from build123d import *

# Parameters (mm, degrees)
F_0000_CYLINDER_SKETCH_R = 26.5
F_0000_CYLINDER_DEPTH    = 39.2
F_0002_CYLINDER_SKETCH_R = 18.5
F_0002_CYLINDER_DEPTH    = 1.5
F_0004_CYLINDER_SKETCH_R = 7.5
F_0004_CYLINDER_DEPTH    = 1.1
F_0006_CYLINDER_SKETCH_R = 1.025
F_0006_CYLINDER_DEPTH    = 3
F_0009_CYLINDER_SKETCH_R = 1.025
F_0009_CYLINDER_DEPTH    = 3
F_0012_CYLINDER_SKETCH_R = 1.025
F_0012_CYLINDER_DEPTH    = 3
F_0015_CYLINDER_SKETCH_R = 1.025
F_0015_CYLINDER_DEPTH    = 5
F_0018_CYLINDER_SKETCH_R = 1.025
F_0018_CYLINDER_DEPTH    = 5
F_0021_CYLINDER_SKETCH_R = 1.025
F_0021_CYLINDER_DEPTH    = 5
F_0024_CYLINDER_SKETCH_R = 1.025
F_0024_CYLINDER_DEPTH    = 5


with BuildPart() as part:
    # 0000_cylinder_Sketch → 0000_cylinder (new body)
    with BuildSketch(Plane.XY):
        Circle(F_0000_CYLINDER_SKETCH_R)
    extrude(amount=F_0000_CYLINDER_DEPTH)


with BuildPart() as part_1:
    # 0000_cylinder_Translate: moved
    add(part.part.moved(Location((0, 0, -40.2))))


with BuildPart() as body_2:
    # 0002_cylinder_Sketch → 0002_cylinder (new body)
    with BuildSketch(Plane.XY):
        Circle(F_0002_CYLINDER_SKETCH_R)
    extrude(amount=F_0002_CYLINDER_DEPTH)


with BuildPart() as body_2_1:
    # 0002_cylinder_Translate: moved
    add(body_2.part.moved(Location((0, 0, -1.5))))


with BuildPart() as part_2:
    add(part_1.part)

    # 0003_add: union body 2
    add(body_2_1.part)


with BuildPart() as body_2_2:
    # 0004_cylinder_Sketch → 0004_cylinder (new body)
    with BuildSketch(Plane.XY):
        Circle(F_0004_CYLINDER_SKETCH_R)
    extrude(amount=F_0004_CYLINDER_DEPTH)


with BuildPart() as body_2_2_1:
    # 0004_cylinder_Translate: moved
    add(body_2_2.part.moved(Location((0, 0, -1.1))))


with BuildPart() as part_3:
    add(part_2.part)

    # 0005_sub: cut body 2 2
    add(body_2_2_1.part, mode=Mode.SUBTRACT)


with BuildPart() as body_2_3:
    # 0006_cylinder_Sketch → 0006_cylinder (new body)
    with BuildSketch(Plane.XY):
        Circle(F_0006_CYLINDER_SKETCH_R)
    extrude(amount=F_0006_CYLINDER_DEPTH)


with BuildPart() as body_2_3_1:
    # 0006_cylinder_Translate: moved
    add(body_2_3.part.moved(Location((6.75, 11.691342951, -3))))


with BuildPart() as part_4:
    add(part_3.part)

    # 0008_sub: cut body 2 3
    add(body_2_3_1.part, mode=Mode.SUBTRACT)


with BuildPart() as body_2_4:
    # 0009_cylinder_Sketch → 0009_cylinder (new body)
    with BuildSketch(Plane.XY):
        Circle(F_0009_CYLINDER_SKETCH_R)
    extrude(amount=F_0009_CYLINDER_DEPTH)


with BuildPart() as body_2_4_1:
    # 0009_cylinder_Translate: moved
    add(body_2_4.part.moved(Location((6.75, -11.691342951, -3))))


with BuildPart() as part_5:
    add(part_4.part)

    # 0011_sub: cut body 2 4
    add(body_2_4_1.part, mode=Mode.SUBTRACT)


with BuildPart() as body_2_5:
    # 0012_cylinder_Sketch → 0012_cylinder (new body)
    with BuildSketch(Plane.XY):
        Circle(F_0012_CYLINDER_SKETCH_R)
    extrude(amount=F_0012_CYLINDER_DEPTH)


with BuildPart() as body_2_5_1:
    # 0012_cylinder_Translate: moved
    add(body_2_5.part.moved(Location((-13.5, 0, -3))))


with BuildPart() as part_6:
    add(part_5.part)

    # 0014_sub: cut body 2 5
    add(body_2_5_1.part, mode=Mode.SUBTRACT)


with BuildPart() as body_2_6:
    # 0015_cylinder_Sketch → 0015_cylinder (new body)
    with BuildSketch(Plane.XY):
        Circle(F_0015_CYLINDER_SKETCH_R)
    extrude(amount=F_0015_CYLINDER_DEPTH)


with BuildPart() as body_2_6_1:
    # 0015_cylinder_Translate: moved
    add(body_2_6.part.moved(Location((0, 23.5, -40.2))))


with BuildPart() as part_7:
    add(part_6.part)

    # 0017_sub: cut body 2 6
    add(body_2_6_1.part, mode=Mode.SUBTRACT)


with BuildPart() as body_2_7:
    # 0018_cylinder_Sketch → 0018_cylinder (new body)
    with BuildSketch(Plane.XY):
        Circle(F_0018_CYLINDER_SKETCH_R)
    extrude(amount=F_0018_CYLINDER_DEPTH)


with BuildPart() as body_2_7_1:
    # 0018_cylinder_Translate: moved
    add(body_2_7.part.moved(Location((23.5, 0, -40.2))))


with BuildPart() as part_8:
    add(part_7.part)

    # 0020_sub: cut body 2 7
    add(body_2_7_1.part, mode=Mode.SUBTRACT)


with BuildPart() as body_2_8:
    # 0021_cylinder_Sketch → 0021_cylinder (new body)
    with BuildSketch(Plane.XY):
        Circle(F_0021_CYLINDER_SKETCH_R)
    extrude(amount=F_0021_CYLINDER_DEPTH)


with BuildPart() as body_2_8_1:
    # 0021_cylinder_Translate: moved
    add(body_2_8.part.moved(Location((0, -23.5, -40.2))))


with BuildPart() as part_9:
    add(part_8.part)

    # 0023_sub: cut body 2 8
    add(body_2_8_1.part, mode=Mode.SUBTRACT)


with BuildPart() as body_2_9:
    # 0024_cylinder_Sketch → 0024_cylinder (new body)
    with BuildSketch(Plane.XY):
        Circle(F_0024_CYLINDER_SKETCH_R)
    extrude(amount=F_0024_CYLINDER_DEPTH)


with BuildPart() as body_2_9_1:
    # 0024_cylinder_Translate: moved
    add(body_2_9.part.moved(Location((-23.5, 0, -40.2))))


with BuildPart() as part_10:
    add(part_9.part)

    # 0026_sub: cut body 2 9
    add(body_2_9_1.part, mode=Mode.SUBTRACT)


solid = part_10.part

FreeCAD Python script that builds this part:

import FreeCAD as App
import Part
import Sketcher

V = App.Vector

doc = App.newDocument("Part")
body = doc.addObject("PartDesign::Body", "Body")

# Sketch on XY plane
sketch1 = doc.addObject("Sketcher::SketchObject", "Sketch")
body.addObject(sketch1)
sketch1.AttachmentSupport = (doc.XY_Plane, [""])
sketch1.MapMode = "FlatFace"
sketch1.addGeometry(Part.Circle(V(0, 0, 0), V(0, 0, 1), 26.5), False)
sketch1.addConstraint(Sketcher.Constraint("Coincident", 0, 3, -1, 1))
sketch1.addConstraint(Sketcher.Constraint("Diameter", 0, 53.0))
pad1 = doc.addObject("PartDesign::Pad", "Pad")
body.addObject(pad1)
pad1.Profile = sketch1
pad1.Length = 39.2
body2 = doc.addObject("PartDesign::Body", "Body001")
doc.recompute()

body.Placement = App.Placement(V(0, 0, -40.2), App.Rotation(V(0, 0, 1), 0))
boolean = doc.addObject("PartDesign::Boolean", "Boolean")
body2.addObject(boolean)
boolean.Type = "Fuse"
boolean.addObjects([body])
body3 = doc.addObject("PartDesign::Body", "Body002")

# Sketch on XY plane
sketch2 = doc.addObject("Sketcher::SketchObject", "Sketch001")
body3.addObject(sketch2)
sketch2.AttachmentSupport = (doc.getObject("XY_Plane002"), [""])
sketch2.MapMode = "FlatFace"
sketch2.addGeometry(Part.Circle(V(0, 0, 0), V(0, 0, 1), 18.5), False)
sketch2.addConstraint(Sketcher.Constraint("Coincident", 0, 3, -1, 1))
sketch2.addConstraint(Sketcher.Constraint("Diameter", 0, 37.0))
pad2 = doc.addObject("PartDesign::Pad", "Pad001")
body3.addObject(pad2)
pad2.Profile = sketch2
pad2.Length = 1.5
body4 = doc.addObject("PartDesign::Body", "Body003")
doc.recompute()

body3.Placement = App.Placement(V(0, 0, -1.5), App.Rotation(V(0, 0, 1), 0))
boolean2 = doc.addObject("PartDesign::Boolean", "Boolean001")
body4.addObject(boolean2)
boolean2.Type = "Fuse"
boolean2.addObjects([body3])
doc.recompute()

boolean3 = doc.addObject("PartDesign::Boolean", "Boolean002")
body2.addObject(boolean3)
boolean3.Type = "Fuse"
boolean3.addObjects([body4])
body5 = doc.addObject("PartDesign::Body", "Body004")

# Sketch on XY plane
sketch3 = doc.addObject("Sketcher::SketchObject", "Sketch002")
body5.addObject(sketch3)
sketch3.AttachmentSupport = (doc.getObject("XY_Plane004"), [""])
sketch3.MapMode = "FlatFace"
sketch3.addGeometry(Part.Circle(V(0, 0, 0), V(0, 0, 1), 7.5), False)
sketch3.addConstraint(Sketcher.Constraint("Coincident", 0, 3, -1, 1))
sketch3.addConstraint(Sketcher.Constraint("Diameter", 0, 15.0))
pad3 = doc.addObject("PartDesign::Pad", "Pad002")
body5.addObject(pad3)
pad3.Profile = sketch3
pad3.Length = 1.1
body6 = doc.addObject("PartDesign::Body", "Body005")
doc.recompute()

body5.Placement = App.Placement(V(0, 0, -1.1), App.Rotation(V(0, 0, 1), 0))
boolean4 = doc.addObject("PartDesign::Boolean", "Boolean003")
body6.addObject(boolean4)
boolean4.Type = "Fuse"
boolean4.addObjects([body5])
doc.recompute()

boolean5 = doc.addObject("PartDesign::Boolean", "Boolean004")
body2.addObject(boolean5)
boolean5.Type = "Cut"
boolean5.addObjects([body6])
body7 = doc.addObject("PartDesign::Body", "Body006")

# Sketch on XY plane
sketch4 = doc.addObject("Sketcher::SketchObject", "Sketch003")
body7.addObject(sketch4)
sketch4.AttachmentSupport = (doc.getObject("XY_Plane006"), [""])
sketch4.MapMode = "FlatFace"
sketch4.addGeometry(Part.Circle(V(0, 0, 0), V(0, 0, 1), 1.025), False)
sketch4.addConstraint(Sketcher.Constraint("Coincident", 0, 3, -1, 1))
sketch4.addConstraint(Sketcher.Constraint("Diameter", 0, 2.05))
pad4 = doc.addObject("PartDesign::Pad", "Pad003")
body7.addObject(pad4)
pad4.Profile = sketch4
pad4.Length = 3
body8 = doc.addObject("PartDesign::Body", "Body007")
doc.recompute()

body7.Placement = App.Placement(V(6.75, 11.691343, -3), App.Rotation(V(0, 0, 1), 0))
boolean6 = doc.addObject("PartDesign::Boolean", "Boolean005")
body8.addObject(boolean6)
boolean6.Type = "Fuse"
boolean6.addObjects([body7])
doc.recompute()

boolean7 = doc.addObject("PartDesign::Boolean", "Boolean006")
body2.addObject(boolean7)
boolean7.Type = "Cut"
boolean7.addObjects([body8])
body9 = doc.addObject("PartDesign::Body", "Body008")

# Sketch on XY plane
sketch5 = doc.addObject("Sketcher::SketchObject", "Sketch004")
body9.addObject(sketch5)
sketch5.AttachmentSupport = (doc.getObject("XY_Plane008"), [""])
sketch5.MapMode = "FlatFace"
sketch5.addGeometry(Part.Circle(V(0, 0, 0), V(0, 0, 1), 1.025), False)
sketch5.addConstraint(Sketcher.Constraint("Coincident", 0, 3, -1, 1))
sketch5.addConstraint(Sketcher.Constraint("Diameter", 0, 2.05))
pad5 = doc.addObject("PartDesign::Pad", "Pad004")
body9.addObject(pad5)
pad5.Profile = sketch5
pad5.Length = 3
body10 = doc.addObject("PartDesign::Body", "Body009")
doc.recompute()

body9.Placement = App.Placement(V(6.75, -11.691343, -3), App.Rotation(V(0, 0, 1), 0))
boolean8 = doc.addObject("PartDesign::Boolean", "Boolean007")
body10.addObject(boolean8)
boolean8.Type = "Fuse"
boolean8.addObjects([body9])
doc.recompute()

boolean9 = doc.addObject("PartDesign::Boolean", "Boolean008")
body2.addObject(boolean9)
boolean9.Type = "Cut"
boolean9.addObjects([body10])
body11 = doc.addObject("PartDesign::Body", "Body010")

# Sketch on XY plane
sketch6 = doc.addObject("Sketcher::SketchObject", "Sketch005")
body11.addObject(sketch6)
sketch6.AttachmentSupport = (doc.getObject("XY_Plane010"), [""])
sketch6.MapMode = "FlatFace"
sketch6.addGeometry(Part.Circle(V(0, 0, 0), V(0, 0, 1), 1.025), False)
sketch6.addConstraint(Sketcher.Constraint("Coincident", 0, 3, -1, 1))
sketch6.addConstraint(Sketcher.Constraint("Diameter", 0, 2.05))
pad6 = doc.addObject("PartDesign::Pad", "Pad005")
body11.addObject(pad6)
pad6.Profile = sketch6
pad6.Length = 3
body12 = doc.addObject("PartDesign::Body", "Body011")
doc.recompute()

body11.Placement = App.Placement(V(-13.5, 0, -3), App.Rotation(V(0, 0, 1), 0))
boolean10 = doc.addObject("PartDesign::Boolean", "Boolean009")
body12.addObject(boolean10)
boolean10.Type = "Fuse"
boolean10.addObjects([body11])
doc.recompute()

boolean11 = doc.addObject("PartDesign::Boolean", "Boolean010")
body2.addObject(boolean11)
boolean11.Type = "Cut"
boolean11.addObjects([body12])
body13 = doc.addObject("PartDesign::Body", "Body012")

# Sketch on XY plane
sketch7 = doc.addObject("Sketcher::SketchObject", "Sketch006")
body13.addObject(sketch7)
sketch7.AttachmentSupport = (doc.getObject("XY_Plane012"), [""])
sketch7.MapMode = "FlatFace"
sketch7.addGeometry(Part.Circle(V(0, 0, 0), V(0, 0, 1), 1.025), False)
sketch7.addConstraint(Sketcher.Constraint("Coincident", 0, 3, -1, 1))
sketch7.addConstraint(Sketcher.Constraint("Diameter", 0, 2.05))
pad7 = doc.addObject("PartDesign::Pad", "Pad006")
body13.addObject(pad7)
pad7.Profile = sketch7
pad7.Length = 5
body14 = doc.addObject("PartDesign::Body", "Body013")
doc.recompute()

body13.Placement = App.Placement(V(0, 23.5, -40.2), App.Rotation(V(0, 0, 1), 0))
boolean12 = doc.addObject("PartDesign::Boolean", "Boolean011")
body14.addObject(boolean12)
boolean12.Type = "Fuse"
boolean12.addObjects([body13])
doc.recompute()

boolean13 = doc.addObject("PartDesign::Boolean", "Boolean012")
body2.addObject(boolean13)
boolean13.Type = "Cut"
boolean13.addObjects([body14])
body15 = doc.addObject("PartDesign::Body", "Body014")

# Sketch on XY plane
sketch8 = doc.addObject("Sketcher::SketchObject", "Sketch007")
body15.addObject(sketch8)
sketch8.AttachmentSupport = (doc.getObject("XY_Plane014"), [""])
sketch8.MapMode = "FlatFace"
sketch8.addGeometry(Part.Circle(V(0, 0, 0), V(0, 0, 1), 1.025), False)
sketch8.addConstraint(Sketcher.Constraint("Coincident", 0, 3, -1, 1))
sketch8.addConstraint(Sketcher.Constraint("Diameter", 0, 2.05))
pad8 = doc.addObject("PartDesign::Pad", "Pad007")
body15.addObject(pad8)
pad8.Profile = sketch8
pad8.Length = 5
body16 = doc.addObject("PartDesign::Body", "Body015")
doc.recompute()

body15.Placement = App.Placement(V(23.5, 0, -40.2), App.Rotation(V(0, 0, 1), 0))
boolean14 = doc.addObject("PartDesign::Boolean", "Boolean013")
body16.addObject(boolean14)
boolean14.Type = "Fuse"
boolean14.addObjects([body15])
doc.recompute()

boolean15 = doc.addObject("PartDesign::Boolean", "Boolean014")
body2.addObject(boolean15)
boolean15.Type = "Cut"
boolean15.addObjects([body16])
body17 = doc.addObject("PartDesign::Body", "Body016")

# Sketch on XY plane
sketch9 = doc.addObject("Sketcher::SketchObject", "Sketch008")
body17.addObject(sketch9)
sketch9.AttachmentSupport = (doc.getObject("XY_Plane016"), [""])
sketch9.MapMode = "FlatFace"
sketch9.addGeometry(Part.Circle(V(0, 0, 0), V(0, 0, 1), 1.025), False)
sketch9.addConstraint(Sketcher.Constraint("Coincident", 0, 3, -1, 1))
sketch9.addConstraint(Sketcher.Constraint("Diameter", 0, 2.05))
pad9 = doc.addObject("PartDesign::Pad", "Pad008")
body17.addObject(pad9)
pad9.Profile = sketch9
pad9.Length = 5
body18 = doc.addObject("PartDesign::Body", "Body017")
doc.recompute()

body17.Placement = App.Placement(V(0, -23.5, -40.2), App.Rotation(V(0, 0, 1), 0))
boolean16 = doc.addObject("PartDesign::Boolean", "Boolean015")
body18.addObject(boolean16)
boolean16.Type = "Fuse"
boolean16.addObjects([body17])
doc.recompute()

boolean17 = doc.addObject("PartDesign::Boolean", "Boolean016")
body2.addObject(boolean17)
boolean17.Type = "Cut"
boolean17.addObjects([body18])
body19 = doc.addObject("PartDesign::Body", "Body018")

# Sketch on XY plane
sketch10 = doc.addObject("Sketcher::SketchObject", "Sketch009")
body19.addObject(sketch10)
sketch10.AttachmentSupport = (doc.getObject("XY_Plane018"), [""])
sketch10.MapMode = "FlatFace"
sketch10.addGeometry(Part.Circle(V(0, 0, 0), V(0, 0, 1), 1.025), False)
sketch10.addConstraint(Sketcher.Constraint("Coincident", 0, 3, -1, 1))
sketch10.addConstraint(Sketcher.Constraint("Diameter", 0, 2.05))
pad10 = doc.addObject("PartDesign::Pad", "Pad009")
body19.addObject(pad10)
pad10.Profile = sketch10
pad10.Length = 5
body20 = doc.addObject("PartDesign::Body", "Body019")
doc.recompute()

body19.Placement = App.Placement(V(-23.5, 0, -40.2), App.Rotation(V(0, 0, 1), 0))
boolean18 = doc.addObject("PartDesign::Boolean", "Boolean017")
body20.addObject(boolean18)
boolean18.Type = "Fuse"
boolean18.addObjects([body19])
doc.recompute()

boolean19 = doc.addObject("PartDesign::Boolean", "Boolean018")
body2.addObject(boolean19)
boolean19.Type = "Cut"
boolean19.addObjects([body20])

doc.recompute()
